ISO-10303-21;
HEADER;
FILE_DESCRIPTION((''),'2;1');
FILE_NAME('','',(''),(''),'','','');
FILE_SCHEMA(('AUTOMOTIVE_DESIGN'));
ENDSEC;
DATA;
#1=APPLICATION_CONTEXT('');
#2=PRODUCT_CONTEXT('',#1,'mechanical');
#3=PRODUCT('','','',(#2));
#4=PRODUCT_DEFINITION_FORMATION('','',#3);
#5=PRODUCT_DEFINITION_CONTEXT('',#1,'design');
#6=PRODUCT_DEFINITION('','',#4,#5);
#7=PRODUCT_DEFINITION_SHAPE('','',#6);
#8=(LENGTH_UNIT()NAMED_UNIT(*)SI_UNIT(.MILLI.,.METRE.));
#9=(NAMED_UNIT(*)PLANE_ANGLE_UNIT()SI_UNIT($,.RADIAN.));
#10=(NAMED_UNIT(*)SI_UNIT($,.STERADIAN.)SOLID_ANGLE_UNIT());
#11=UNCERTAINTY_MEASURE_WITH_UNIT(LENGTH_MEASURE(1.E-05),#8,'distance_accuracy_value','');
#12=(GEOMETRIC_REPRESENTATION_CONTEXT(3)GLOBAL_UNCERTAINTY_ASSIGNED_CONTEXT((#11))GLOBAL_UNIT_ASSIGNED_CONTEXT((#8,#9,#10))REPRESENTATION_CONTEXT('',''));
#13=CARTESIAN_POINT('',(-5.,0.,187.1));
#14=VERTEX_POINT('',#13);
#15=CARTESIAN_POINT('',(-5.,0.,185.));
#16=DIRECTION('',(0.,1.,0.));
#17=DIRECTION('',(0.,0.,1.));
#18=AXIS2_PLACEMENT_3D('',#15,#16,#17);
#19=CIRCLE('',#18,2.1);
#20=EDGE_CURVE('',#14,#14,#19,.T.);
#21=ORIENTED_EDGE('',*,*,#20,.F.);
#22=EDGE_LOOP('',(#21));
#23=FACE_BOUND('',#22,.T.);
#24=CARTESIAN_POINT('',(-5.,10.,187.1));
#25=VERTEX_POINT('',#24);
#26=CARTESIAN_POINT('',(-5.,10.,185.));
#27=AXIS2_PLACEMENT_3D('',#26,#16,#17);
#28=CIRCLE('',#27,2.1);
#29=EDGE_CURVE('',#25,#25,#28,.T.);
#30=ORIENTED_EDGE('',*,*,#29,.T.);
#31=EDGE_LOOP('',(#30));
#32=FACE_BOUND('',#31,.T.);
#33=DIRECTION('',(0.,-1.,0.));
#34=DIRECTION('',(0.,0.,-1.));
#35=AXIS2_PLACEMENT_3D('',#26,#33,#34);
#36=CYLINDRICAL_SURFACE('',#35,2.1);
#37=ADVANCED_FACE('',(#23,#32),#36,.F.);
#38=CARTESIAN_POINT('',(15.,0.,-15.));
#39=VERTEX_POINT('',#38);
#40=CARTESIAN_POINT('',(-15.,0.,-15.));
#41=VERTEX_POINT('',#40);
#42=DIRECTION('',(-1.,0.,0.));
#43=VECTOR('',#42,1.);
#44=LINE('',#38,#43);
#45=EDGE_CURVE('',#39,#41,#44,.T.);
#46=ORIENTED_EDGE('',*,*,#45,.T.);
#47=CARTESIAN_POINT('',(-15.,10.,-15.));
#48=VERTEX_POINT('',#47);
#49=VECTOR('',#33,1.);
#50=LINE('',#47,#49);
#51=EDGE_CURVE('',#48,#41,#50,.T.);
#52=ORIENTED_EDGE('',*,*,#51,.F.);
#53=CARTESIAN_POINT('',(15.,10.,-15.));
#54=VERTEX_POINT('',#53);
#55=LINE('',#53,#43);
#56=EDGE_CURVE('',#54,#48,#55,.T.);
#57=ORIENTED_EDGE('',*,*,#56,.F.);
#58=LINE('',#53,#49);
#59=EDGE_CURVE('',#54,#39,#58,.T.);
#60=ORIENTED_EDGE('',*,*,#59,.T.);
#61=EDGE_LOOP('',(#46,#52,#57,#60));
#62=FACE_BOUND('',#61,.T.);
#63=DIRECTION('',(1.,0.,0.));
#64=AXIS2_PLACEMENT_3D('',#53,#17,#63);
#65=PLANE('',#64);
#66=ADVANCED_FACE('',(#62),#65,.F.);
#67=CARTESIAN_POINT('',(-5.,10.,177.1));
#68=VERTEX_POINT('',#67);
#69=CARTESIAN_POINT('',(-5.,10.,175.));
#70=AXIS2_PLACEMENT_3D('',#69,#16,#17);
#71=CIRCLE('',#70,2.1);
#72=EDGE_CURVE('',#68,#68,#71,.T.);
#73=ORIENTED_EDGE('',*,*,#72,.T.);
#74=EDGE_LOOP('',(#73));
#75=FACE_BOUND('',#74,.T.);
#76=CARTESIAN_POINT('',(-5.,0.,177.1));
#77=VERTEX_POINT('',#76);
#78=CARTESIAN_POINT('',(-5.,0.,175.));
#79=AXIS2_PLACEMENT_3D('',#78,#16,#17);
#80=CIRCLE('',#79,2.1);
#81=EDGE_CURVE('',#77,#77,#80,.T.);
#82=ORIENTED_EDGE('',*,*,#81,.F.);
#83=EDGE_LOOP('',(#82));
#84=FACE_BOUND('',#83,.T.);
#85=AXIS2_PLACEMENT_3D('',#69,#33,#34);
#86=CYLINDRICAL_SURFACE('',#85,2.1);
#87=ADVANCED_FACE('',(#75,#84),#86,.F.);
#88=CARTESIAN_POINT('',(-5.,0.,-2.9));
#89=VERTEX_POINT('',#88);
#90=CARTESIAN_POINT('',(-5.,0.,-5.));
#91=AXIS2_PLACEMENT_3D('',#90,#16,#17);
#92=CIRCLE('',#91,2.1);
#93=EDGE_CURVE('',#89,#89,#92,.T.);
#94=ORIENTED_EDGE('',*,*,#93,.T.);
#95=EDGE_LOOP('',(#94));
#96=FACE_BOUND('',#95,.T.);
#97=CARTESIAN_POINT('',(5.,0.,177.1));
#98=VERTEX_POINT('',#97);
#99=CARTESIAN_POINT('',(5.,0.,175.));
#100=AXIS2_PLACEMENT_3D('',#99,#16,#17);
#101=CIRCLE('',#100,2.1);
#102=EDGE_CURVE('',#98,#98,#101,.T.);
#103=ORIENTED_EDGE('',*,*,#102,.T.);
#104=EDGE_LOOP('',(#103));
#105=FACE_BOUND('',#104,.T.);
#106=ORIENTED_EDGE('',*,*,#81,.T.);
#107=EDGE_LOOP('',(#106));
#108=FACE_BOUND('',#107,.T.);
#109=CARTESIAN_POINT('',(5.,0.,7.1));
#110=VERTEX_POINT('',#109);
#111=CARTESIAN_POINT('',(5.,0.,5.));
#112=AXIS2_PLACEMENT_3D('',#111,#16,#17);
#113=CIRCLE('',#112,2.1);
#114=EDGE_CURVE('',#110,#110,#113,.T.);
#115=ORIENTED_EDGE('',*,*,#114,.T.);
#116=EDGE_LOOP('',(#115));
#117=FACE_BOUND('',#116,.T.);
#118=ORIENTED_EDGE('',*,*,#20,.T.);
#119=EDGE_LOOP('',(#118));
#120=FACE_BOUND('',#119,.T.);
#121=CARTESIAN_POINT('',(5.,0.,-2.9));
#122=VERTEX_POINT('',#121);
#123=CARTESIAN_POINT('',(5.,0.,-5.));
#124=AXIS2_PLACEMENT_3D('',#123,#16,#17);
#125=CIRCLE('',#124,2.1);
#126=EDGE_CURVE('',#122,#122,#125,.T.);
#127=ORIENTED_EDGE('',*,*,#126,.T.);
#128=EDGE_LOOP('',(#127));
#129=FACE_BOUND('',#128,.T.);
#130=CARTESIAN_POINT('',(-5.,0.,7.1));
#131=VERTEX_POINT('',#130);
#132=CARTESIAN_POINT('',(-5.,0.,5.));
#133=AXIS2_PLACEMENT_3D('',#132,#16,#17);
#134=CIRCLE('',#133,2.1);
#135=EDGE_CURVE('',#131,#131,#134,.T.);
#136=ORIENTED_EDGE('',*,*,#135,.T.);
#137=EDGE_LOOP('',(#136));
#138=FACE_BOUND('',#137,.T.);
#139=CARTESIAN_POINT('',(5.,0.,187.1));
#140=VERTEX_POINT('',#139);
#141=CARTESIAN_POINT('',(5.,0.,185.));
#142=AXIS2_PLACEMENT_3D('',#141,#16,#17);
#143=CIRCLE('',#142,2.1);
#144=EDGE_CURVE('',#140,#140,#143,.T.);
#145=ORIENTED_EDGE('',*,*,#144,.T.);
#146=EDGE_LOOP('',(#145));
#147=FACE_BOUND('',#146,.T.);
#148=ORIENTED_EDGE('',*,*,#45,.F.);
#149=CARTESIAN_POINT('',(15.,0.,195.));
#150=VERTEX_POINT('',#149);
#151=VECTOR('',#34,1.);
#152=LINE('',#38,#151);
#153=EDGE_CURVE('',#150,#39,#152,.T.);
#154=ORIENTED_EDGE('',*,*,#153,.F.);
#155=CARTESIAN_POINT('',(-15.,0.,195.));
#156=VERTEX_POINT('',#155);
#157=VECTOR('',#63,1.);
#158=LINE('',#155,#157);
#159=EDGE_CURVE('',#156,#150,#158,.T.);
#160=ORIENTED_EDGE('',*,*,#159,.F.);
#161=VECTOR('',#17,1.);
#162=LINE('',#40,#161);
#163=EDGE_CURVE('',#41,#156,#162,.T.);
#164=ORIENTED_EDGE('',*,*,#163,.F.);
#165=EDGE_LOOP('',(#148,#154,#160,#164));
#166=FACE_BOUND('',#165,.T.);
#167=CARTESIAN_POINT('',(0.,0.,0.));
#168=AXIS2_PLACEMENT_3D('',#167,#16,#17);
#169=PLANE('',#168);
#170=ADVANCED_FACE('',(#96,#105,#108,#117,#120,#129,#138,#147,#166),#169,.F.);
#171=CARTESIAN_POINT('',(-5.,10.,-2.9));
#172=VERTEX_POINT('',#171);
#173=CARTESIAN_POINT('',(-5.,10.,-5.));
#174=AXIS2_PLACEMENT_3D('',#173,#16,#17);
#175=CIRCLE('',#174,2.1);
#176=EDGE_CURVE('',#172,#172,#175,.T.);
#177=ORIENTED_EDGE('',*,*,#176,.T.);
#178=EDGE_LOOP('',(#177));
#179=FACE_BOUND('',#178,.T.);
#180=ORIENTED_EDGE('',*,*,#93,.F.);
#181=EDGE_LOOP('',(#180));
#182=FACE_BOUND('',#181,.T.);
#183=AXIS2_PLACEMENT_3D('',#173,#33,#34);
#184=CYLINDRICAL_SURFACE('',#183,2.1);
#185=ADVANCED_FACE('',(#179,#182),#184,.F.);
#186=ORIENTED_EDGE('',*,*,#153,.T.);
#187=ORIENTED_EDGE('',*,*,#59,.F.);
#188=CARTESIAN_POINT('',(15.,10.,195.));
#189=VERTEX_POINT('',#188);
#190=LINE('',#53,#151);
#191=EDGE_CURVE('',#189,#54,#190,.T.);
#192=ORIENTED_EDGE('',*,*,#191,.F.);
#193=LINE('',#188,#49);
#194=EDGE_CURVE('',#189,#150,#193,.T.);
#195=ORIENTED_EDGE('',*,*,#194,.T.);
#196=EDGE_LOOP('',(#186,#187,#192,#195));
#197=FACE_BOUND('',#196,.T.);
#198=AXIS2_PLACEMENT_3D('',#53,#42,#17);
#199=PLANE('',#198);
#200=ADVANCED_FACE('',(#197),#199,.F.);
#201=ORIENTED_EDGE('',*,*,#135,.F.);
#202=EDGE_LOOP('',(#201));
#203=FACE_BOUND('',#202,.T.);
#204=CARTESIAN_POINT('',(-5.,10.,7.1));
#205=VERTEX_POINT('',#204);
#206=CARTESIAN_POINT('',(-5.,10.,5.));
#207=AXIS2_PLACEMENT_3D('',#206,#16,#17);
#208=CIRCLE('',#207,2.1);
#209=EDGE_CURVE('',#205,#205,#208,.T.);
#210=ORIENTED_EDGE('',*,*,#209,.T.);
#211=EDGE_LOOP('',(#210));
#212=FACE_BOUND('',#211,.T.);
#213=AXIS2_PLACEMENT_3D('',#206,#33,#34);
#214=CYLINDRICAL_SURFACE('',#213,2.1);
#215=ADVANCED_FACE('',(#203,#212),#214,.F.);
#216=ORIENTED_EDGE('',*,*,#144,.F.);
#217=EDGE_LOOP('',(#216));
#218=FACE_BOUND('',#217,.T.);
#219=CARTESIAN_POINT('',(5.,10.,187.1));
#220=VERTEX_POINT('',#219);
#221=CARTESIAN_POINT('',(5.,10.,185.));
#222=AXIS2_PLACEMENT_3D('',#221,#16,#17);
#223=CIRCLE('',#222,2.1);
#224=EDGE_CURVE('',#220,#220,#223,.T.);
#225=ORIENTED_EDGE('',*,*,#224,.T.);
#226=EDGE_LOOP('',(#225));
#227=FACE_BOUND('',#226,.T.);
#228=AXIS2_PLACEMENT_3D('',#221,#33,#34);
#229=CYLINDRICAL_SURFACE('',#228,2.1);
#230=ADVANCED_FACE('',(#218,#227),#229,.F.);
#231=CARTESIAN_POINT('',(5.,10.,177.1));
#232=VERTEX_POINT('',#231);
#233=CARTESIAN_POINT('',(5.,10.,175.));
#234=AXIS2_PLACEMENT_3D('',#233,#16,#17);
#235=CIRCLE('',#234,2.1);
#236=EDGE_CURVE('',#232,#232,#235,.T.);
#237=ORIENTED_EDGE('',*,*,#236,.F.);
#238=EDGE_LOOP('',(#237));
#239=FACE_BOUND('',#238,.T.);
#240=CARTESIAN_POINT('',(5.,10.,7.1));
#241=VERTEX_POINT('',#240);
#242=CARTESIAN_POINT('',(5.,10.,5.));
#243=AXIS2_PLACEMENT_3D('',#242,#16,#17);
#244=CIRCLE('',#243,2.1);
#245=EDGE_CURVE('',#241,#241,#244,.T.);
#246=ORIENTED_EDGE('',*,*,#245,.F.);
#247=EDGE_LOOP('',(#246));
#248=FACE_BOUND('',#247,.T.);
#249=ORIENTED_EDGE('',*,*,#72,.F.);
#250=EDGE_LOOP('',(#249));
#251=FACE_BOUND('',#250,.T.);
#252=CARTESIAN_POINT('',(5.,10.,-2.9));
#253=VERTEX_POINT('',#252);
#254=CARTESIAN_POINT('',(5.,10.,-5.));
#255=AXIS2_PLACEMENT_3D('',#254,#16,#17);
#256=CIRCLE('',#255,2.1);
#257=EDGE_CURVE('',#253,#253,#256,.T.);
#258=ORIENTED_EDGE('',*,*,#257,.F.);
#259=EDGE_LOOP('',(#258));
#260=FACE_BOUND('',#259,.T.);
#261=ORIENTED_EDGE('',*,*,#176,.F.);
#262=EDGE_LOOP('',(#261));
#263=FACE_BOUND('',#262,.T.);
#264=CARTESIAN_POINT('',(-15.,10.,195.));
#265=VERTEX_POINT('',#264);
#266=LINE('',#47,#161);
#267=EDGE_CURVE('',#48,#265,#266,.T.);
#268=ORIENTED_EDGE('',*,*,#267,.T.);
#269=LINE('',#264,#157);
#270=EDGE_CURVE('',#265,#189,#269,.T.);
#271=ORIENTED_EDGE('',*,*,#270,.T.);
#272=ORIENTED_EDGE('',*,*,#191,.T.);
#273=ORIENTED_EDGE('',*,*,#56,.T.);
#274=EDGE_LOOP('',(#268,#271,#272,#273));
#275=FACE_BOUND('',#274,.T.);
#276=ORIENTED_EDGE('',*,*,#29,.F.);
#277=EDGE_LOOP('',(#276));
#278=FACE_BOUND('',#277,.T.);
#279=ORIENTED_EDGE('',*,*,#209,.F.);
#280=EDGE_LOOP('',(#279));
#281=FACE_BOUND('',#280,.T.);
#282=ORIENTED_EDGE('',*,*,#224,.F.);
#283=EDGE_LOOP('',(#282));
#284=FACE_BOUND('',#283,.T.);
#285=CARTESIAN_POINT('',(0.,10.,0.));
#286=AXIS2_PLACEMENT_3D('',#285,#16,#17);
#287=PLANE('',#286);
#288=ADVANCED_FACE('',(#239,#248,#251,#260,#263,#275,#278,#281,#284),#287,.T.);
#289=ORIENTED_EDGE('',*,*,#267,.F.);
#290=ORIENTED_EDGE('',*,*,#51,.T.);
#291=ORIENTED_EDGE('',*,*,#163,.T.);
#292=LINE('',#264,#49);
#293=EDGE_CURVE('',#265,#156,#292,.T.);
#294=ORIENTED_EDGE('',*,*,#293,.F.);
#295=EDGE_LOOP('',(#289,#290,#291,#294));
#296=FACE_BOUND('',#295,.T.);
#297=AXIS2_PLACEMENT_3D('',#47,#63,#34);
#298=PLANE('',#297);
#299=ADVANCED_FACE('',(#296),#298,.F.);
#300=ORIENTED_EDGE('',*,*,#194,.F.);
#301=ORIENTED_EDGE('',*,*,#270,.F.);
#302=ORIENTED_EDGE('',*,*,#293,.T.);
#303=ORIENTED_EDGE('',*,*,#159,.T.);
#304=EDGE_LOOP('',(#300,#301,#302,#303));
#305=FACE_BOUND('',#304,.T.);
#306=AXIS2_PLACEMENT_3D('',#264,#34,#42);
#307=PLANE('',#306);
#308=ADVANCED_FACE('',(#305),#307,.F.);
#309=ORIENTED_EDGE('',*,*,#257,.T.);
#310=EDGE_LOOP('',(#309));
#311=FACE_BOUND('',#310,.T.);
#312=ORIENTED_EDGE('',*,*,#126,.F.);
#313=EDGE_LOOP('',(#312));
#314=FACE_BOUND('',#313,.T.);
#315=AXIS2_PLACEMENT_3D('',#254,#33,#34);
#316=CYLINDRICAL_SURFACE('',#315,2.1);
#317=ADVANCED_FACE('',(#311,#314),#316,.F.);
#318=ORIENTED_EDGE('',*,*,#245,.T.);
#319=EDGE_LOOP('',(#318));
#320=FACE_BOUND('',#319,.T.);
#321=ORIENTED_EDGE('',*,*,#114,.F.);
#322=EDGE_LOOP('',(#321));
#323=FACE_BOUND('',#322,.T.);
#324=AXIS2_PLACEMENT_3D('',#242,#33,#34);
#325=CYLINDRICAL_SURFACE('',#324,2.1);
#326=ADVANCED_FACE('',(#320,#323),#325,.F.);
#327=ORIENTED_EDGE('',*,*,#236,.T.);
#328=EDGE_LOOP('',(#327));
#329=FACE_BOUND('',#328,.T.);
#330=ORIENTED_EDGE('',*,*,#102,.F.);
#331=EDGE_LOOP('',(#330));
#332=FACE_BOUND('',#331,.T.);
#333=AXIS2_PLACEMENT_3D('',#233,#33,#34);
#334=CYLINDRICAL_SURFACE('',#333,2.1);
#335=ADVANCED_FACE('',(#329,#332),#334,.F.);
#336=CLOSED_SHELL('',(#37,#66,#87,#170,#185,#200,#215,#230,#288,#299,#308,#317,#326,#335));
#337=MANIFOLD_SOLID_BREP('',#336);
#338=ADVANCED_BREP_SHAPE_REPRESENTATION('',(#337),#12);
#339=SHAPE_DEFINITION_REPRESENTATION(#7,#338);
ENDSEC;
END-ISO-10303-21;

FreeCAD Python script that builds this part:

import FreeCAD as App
import Part
import Sketcher
from FreeCAD import Vector
Q = App.Units.Quantity


def add_polygon(sketch, points):
    """Adds a closed chain of lines whose ends are joined by coincident constraints."""
    first, n = sketch.GeometryCount, len(points)
    for a, b in zip(points, points[1:] + points[:1]):
        sketch.addGeometry(Part.LineSegment(App.Vector(*a, 0), App.Vector(*b, 0)), False)
    for i in range(n):
        sketch.addConstraint(Sketcher.Constraint("Coincident", first + i, 2, first + (i + 1) % n, 1))

doc = App.newDocument("Part")
params = doc.addObject("Spreadsheet::Sheet", "Params")
for row, (alias, value) in enumerate([
    ("sketch1_diameter", "4.2 mm"),
    ("sketch1_width", "30 mm"),
    ("sketch1_height", "210 mm"),
    ("pad1_length", "10 mm"),
], start=1):
    params.set(f"A{row}", alias)
    params.set(f"B{row}", "=" + value)
    params.setAlias(f"B{row}", alias)

body = doc.addObject("PartDesign::Body", "Body")

# Sketch on XZ plane
sketch1 = body.newObject("Sketcher::SketchObject", "Sketch")
sketch1.AttachmentSupport = (doc.getObject("XZ_Plane"), [""])
sketch1.MapMode = "FlatFace"
add_polygon(sketch1, [(-15, -15), (-15, 195), (15, 195), (15, -15)])  # lines 0-3
sketch1.addGeometry(Part.Circle(Vector(-5, 185, 0), Vector(0, 0, 1), 2.1), False)  # 4
sketch1.addGeometry(Part.Circle(Vector(-5, 175, 0), Vector(0, 0, 1), 2.1), False)  # 5
sketch1.addGeometry(Part.Circle(Vector(5, 185, 0), Vector(0, 0, 1), 2.1), False)  # 6
sketch1.addGeometry(Part.Circle(Vector(5, 175, 0), Vector(0, 0, 1), 2.1), False)  # 7
sketch1.addGeometry(Part.Circle(Vector(-5, 5, 0), Vector(0, 0, 1), 2.1), False)  # 8
sketch1.addGeometry(Part.Circle(Vector(-5, -5, 0), Vector(0, 0, 1), 2.1), False)  # 9
sketch1.addGeometry(Part.Circle(Vector(5, 5, 0), Vector(0, 0, 1), 2.1), False)  # 10
sketch1.addGeometry(Part.Circle(Vector(5, -5, 0), Vector(0, 0, 1), 2.1), False)  # 11
sketch1.addConstraint(Sketcher.Constraint("Vertical", 0))
sketch1.addConstraint(Sketcher.Constraint("Horizontal", 1))
sketch1.addConstraint(Sketcher.Constraint("Vertical", 2))
sketch1.addConstraint(Sketcher.Constraint("Horizontal", 3))
sketch1.addConstraint(Sketcher.Constraint("Equal", 4, 5))
sketch1.addConstraint(Sketcher.Constraint("Equal", 5, 6))
sketch1.addConstraint(Sketcher.Constraint("Equal", 6, 7))
sketch1.addConstraint(Sketcher.Constraint("Equal", 7, 8))
sketch1.addConstraint(Sketcher.Constraint("Equal", 8, 9))
sketch1.addConstraint(Sketcher.Constraint("Equal", 9, 10))
sketch1.addConstraint(Sketcher.Constraint("Equal", 10, 11))
sketch1.addConstraint(Sketcher.Constraint("Symmetric", 9, 3, 10, 3, -1, 1))
sketch1.addConstraint(Sketcher.Constraint("Symmetric", 8, 3, 11, 3, -1, 1))
sketch1.addConstraint(Sketcher.Constraint("Symmetric", 4, 3, 6, 3, -2))
sketch1.addConstraint(Sketcher.Constraint("Symmetric", 5, 3, 7, 3, -2))
sketch1.addConstraint(Sketcher.Constraint("Symmetric", 8, 3, 10, 3, -2))
sketch1.addConstraint(Sketcher.Constraint("Vertical", 4, 3, 5, 3))
sketch1.addConstraint(Sketcher.Constraint("Vertical", 5, 3, 8, 3))
sketch1.addConstraint(Sketcher.Constraint("Diameter", 4, Q("4.2 mm")))
sketch1.addConstraint(Sketcher.Constraint("DistanceX", 1, 1, 1, 2, Q("30 mm")))
sketch1.addConstraint(Sketcher.Constraint("DistanceY", 0, 1, 0, 2, Q("210 mm")))
sketch1.addConstraint(Sketcher.Constraint("DistanceX", 4, 3, -1, 1, Q("5 mm")))
sketch1.addConstraint(Sketcher.Constraint("DistanceY", -1, 1, 4, 3, Q("185 mm")))
sketch1.addConstraint(Sketcher.Constraint("DistanceY", -1, 1, 5, 3, Q("175 mm")))
sketch1.addConstraint(Sketcher.Constraint("DistanceY", -1, 1, 8, 3, Q("5 mm")))
sketch1.addConstraint(Sketcher.Constraint("DistanceX", 0, 2, -1, 1, Q("15 mm")))
sketch1.addConstraint(Sketcher.Constraint("DistanceY", -1, 1, 0, 2, Q("195 mm")))
sketch1.setExpression("Constraints[22]", "Params.sketch1_diameter")
sketch1.setExpression("Constraints[23]", "Params.sketch1_width")
sketch1.setExpression("Constraints[24]", "Params.sketch1_height")
pad1 = body.newObject("PartDesign::Pad", "Pad")
pad1.Profile = sketch1
pad1.setExpression("Length", "Params.pad1_length")
pad1.Reversed = True

doc.recompute()
